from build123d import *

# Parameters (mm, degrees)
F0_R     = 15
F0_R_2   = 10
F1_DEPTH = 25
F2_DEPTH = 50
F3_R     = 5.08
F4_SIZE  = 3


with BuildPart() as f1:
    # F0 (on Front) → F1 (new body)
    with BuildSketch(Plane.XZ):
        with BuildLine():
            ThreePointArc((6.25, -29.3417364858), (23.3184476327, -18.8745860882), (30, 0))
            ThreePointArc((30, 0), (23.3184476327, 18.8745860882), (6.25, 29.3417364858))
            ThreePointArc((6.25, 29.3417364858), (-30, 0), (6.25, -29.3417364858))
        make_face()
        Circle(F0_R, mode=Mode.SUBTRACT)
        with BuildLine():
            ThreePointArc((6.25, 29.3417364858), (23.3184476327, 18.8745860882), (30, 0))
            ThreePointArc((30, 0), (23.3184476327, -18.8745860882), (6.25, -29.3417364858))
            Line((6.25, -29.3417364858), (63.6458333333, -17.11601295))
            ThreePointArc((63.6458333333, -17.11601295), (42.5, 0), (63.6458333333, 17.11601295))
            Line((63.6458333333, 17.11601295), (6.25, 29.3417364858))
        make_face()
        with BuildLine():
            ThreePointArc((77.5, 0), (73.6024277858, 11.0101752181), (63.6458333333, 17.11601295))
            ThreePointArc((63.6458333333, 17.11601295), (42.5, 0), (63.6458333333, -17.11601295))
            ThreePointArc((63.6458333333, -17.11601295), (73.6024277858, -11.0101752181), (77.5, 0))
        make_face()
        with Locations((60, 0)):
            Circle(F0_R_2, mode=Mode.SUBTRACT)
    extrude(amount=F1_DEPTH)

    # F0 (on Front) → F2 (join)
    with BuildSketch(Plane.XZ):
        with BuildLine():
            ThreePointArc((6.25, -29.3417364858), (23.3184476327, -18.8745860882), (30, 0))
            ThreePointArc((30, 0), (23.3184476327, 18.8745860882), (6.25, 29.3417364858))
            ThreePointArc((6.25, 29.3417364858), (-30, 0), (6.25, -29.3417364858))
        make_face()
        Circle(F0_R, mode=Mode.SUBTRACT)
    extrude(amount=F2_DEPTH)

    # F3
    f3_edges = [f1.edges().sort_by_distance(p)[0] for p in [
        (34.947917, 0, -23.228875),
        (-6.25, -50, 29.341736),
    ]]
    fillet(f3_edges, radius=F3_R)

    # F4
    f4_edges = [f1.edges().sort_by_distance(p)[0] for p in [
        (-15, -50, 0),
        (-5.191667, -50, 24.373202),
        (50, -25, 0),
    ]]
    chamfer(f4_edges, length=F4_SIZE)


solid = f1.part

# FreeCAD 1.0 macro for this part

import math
import FreeCAD as App
import Part
import Sketcher
from FreeCAD import Vector
Q = App.Units.Quantity


def edges_at(feature, points):
    """Names of the edges that pass closest to the given points."""
    edges = feature.Shape.Edges
    near = lambda p: min(range(len(edges)), key=lambda i: edges[i].distToShape(Part.Vertex(*p))[0])
    return sorted({f"Edge{near(p) + 1}" for p in points})

doc = App.newDocument("Part")
body = doc.addObject("PartDesign::Body", "Body")

sketch1 = doc.addObject("Sketcher::SketchObject", "Sketch")
body.addObject(sketch1)
sketch1.AttachmentSupport = (doc.XZ_Plane, [""])
sketch1.MapMode = "FlatFace"
sketch1.addGeometry([
    Part.ArcOfCircle(Part.Circle(Vector(0, 0, 0), Vector(0, 0, 1), 30), math.radians(78), math.radians(282)),
    Part.LineSegment(Vector(6, -29, 0), Vector(64, -17, 0)),
    Part.ArcOfCircle(Part.Circle(Vector(60, 0, 0), Vector(0, 0, 1), 18), math.radians(-78), math.radians(0)),
    Part.ArcOfCircle(Part.Circle(Vector(60, 0, 0), Vector(0, 0, 1), 18), math.radians(0), math.radians(78)),
    Part.LineSegment(Vector(64, 17, 0), Vector(6, 29, 0)),
    Part.Circle(Vector(0, 0, 0), Vector(0, 0, 1), 15),
    Part.Circle(Vector(60, 0, 0), Vector(0, 0, 1), 10),
], False)
sketch1.addConstraint([
    Sketcher.Constraint("Tangent", 0, 2, 1, 1),
    Sketcher.Constraint("Tangent", 1, 2, 2, 1),
    Sketcher.Constraint("Tangent", 2, 2, 3, 1),
    Sketcher.Constraint("Tangent", 3, 2, 4, 1),
    Sketcher.Constraint("Tangent", 4, 2, 0, 1),
    Sketcher.Constraint("Coincident", 0, 3, -1, 1),
    Sketcher.Constraint("Coincident", 5, 3, -1, 1),
    Sketcher.Constraint("Coincident", 6, 3, 2, 3),
    Sketcher.Constraint("Equal", 2, 3),
    Sketcher.Constraint("PointOnObject", 2, 3, -1),
    Sketcher.Constraint("PointOnObject", 2, 2, -1),
    Sketcher.Constraint("Diameter", 5, Q("30 mm")),
    Sketcher.Constraint("Diameter", 6, Q("20 mm")),
    Sketcher.Constraint("Radius", 0, Q("30 mm")),
    Sketcher.Constraint("Radius", 2, Q("17.5 mm")),
    Sketcher.Constraint("DistanceX", -1, 1, 2, 3, Q("60 mm")),
])
pad1 = doc.addObject("PartDesign::Pad", "Pad")
body.addObject(pad1)
pad1.Profile = sketch1
pad1.Length = 25

sketch2 = doc.addObject("Sketcher::SketchObject", "Sketch001")
body.addObject(sketch2)
sketch2.AttachmentSupport = (doc.XZ_Plane, [""])
sketch2.MapMode = "FlatFace"
sketch2.addGeometry([
    Part.ArcOfCircle(Part.Circle(Vector(0, 0, 0), Vector(0, 0, 1), 30), math.radians(-78), math.radians(0)),
    Part.ArcOfCircle(Part.Circle(Vector(0, 0, 0), Vector(0, 0, 1), 30), math.radians(0), math.radians(78)),
    Part.ArcOfCircle(Part.Circle(Vector(0, 0, 0), Vector(0, 0, 1), 30), math.radians(78), math.radians(282)),
    Part.Circle(Vector(0, 0, 0), Vector(0, 0, 1), 15),
], False)
sketch2.addConstraint([
    Sketcher.Constraint("Tangent", 0, 2, 1, 1),
    Sketcher.Constraint("Tangent", 1, 2, 2, 1),
    Sketcher.Constraint("Tangent", 2, 2, 0, 1),
    Sketcher.Constraint("Coincident", 0, 3, -1, 1),
    Sketcher.Constraint("Coincident", 3, 3, -1, 1),
    Sketcher.Constraint("PointOnObject", 0, 2, -1),
    Sketcher.Constraint("Vertical", 1, 2, 2, 2),
    Sketcher.Constraint("Diameter", 3, Q("30 mm")),
    Sketcher.Constraint("Radius", 0, Q("30 mm")),
    Sketcher.Constraint("DistanceX", -1, 1, 1, 2, Q("6.25 mm")),
])
pad2 = doc.addObject("PartDesign::Pad", "Pad001")
body.addObject(pad2)
pad2.Profile = sketch2
pad2.Length = 50
doc.recompute()

fillet = doc.addObject("PartDesign::Fillet", "Fillet")
body.addObject(fillet)
fillet.Base = (pad2, edges_at(pad2, [(34.948, 0, -23.229), (-30, -50, 0)]))
fillet.Radius = 5.08
doc.recompute()

chamfer = doc.addObject("PartDesign::Chamfer", "Chamfer")
body.addObject(chamfer)
chamfer.Base = (fillet, edges_at(fillet, [(-15, -50, 0), (-24.92, -50, 0), (50, -25, 0)]))
chamfer.Size = 3

doc.recompute()
